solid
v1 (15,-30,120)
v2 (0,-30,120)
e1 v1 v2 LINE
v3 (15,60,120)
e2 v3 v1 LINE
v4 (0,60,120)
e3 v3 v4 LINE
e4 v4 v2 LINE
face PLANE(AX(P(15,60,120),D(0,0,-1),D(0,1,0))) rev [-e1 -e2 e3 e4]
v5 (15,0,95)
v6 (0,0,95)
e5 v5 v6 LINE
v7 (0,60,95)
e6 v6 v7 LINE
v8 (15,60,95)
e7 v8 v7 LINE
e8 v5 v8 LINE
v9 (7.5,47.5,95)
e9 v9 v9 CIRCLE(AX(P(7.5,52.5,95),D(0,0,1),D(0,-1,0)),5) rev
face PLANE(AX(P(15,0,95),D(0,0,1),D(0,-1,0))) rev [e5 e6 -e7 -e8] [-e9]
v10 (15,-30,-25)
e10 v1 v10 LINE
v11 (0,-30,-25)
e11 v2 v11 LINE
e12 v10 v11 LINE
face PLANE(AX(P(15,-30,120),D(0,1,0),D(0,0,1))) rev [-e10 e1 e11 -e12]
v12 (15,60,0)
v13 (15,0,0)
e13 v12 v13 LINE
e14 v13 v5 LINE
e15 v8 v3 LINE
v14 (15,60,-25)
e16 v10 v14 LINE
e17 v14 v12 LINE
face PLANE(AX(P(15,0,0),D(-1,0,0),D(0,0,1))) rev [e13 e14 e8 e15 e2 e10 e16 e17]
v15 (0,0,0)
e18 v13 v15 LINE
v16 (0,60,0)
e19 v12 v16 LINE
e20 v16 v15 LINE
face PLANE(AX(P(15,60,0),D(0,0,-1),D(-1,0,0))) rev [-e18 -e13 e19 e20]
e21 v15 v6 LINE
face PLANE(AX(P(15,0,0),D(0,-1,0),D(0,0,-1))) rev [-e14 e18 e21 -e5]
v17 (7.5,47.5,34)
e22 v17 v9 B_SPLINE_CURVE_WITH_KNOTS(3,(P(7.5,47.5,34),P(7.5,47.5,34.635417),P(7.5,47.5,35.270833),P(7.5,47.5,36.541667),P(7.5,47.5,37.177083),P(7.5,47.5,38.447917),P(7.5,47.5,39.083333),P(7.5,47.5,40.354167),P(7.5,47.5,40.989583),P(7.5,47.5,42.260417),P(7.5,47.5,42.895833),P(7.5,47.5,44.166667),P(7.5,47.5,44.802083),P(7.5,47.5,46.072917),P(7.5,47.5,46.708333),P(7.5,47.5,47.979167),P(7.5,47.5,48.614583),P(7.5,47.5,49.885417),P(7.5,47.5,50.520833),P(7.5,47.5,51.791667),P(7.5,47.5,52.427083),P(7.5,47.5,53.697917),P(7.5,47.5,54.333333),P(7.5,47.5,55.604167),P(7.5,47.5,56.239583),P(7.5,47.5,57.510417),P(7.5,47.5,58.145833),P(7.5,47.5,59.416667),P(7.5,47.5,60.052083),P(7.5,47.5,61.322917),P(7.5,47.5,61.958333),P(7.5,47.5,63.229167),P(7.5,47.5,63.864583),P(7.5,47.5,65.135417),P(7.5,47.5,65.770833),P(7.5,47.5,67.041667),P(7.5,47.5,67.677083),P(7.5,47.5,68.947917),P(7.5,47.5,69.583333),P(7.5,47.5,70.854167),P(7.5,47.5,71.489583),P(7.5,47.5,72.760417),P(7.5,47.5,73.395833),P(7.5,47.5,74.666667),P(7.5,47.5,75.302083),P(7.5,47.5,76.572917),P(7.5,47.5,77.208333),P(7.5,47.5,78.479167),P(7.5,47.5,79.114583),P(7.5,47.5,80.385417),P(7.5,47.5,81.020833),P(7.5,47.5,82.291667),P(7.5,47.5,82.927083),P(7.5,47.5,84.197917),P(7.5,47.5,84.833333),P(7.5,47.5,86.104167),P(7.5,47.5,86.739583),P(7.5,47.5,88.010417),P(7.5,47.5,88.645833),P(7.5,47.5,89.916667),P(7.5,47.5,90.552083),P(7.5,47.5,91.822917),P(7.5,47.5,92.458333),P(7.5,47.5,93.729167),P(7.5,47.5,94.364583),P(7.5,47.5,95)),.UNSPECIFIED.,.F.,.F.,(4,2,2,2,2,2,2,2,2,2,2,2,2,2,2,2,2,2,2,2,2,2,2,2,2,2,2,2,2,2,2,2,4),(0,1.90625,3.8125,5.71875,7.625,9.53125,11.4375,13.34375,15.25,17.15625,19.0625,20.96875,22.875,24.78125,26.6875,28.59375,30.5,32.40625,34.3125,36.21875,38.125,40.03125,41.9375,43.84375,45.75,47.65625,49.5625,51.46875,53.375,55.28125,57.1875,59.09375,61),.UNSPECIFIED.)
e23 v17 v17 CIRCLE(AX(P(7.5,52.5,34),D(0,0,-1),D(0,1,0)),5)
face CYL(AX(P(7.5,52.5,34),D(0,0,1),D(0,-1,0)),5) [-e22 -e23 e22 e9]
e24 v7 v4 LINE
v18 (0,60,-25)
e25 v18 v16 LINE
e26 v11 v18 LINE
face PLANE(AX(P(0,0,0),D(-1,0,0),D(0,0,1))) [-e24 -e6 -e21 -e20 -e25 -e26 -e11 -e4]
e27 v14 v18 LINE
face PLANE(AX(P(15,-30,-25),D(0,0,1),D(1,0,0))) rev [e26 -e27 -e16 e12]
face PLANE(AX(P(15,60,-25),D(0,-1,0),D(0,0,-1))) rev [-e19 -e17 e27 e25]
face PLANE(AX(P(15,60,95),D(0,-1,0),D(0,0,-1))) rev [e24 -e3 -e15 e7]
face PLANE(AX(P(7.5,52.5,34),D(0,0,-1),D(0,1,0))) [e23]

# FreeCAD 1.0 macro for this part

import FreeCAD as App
import Part
import Sketcher

doc = App.newDocument("Part")
body = doc.addObject("PartDesign::Body", "Body")

sketch1 = doc.addObject("Sketcher::SketchObject", "Sketch")
body.addObject(sketch1)
sketch1.AttachmentSupport = (doc.YZ_Plane, [""])
sketch1.MapMode = "FlatFace"
sketch1.addGeometry(Part.LineSegment(App.Vector(0, 0, 0), App.Vector(0, 95, 0)), False)
sketch1.addGeometry(Part.LineSegment(App.Vector(0, 95, 0), App.Vector(60, 95, 0)), False)
sketch1.addGeometry(Part.LineSegment(App.Vector(60, 95, 0), App.Vector(60, 120, 0)), False)
sketch1.addGeometry(Part.LineSegment(App.Vector(60, 120, 0), App.Vector(-30, 120, 0)), False)
sketch1.addGeometry(Part.LineSegment(App.Vector(-30, 120, 0), App.Vector(-30, -25, 0)), False)
sketch1.addGeometry(Part.LineSegment(App.Vector(-30, -25, 0), App.Vector(60, -25, 0)), False)
sketch1.addGeometry(Part.LineSegment(App.Vector(60, -25, 0), App.Vector(60, 0, 0)), False)
sketch1.addGeometry(Part.LineSegment(App.Vector(60, 0, 0), App.Vector(0, 0, 0)), False)
sketch1.addConstraint(Sketcher.Constraint("Coincident", 0, 2, 1, 1))
sketch1.addConstraint(Sketcher.Constraint("Coincident", 1, 2, 2, 1))
sketch1.addConstraint(Sketcher.Constraint("Coincident", 2, 2, 3, 1))
sketch1.addConstraint(Sketcher.Constraint("Coincident", 3, 2, 4, 1))
sketch1.addConstraint(Sketcher.Constraint("Coincident", 4, 2, 5, 1))
sketch1.addConstraint(Sketcher.Constraint("Coincident", 5, 2, 6, 1))
sketch1.addConstraint(Sketcher.Constraint("Coincident", 6, 2, 7, 1))
sketch1.addConstraint(Sketcher.Constraint("Coincident", 7, 2, 0, 1))
sketch1.addConstraint(Sketcher.Constraint("Vertical", 0))
sketch1.addConstraint(Sketcher.Constraint("Horizontal", 1))
sketch1.addConstraint(Sketcher.Constraint("Vertical", 2))
sketch1.addConstraint(Sketcher.Constraint("Horizontal", 3))
sketch1.addConstraint(Sketcher.Constraint("Vertical", 4))
sketch1.addConstraint(Sketcher.Constraint("Horizontal", 5))
sketch1.addConstraint(Sketcher.Constraint("Vertical", 6))
sketch1.addConstraint(Sketcher.Constraint("Horizontal", 7))
sketch1.addConstraint(Sketcher.Constraint("Coincident", 7, 2, -1, 1))
sketch1.addConstraint(Sketcher.Constraint("Vertical", 2, 2, 5, 2))
sketch1.addConstraint(Sketcher.Constraint("Equal", 2, 6))
sketch1.addConstraint(Sketcher.Constraint("DistanceX", 1, 1, 1, 2, 60.0))
sketch1.addConstraint(Sketcher.Constraint("DistanceX", 3, 2, 3, 1, 90.0))
sketch1.addConstraint(Sketcher.Constraint("DistanceY", 0, 1, 0, 2, 95.0))
sketch1.addConstraint(Sketcher.Constraint("DistanceY", 2, 1, 2, 2, 25.0))
pad1 = doc.addObject("PartDesign::Pad", "Pad")
body.addObject(pad1)
pad1.Profile = sketch1
pad1.Length = 15

sketch2 = doc.addObject("Sketcher::SketchObject", "Sketch001")
body.addObject(sketch2)
sketch2.AttachmentSupport = (doc.XY_Plane, [""])
sketch2.MapMode = "FlatFace"
sketch2.AttachmentOffset = App.Placement(App.Vector(0, 0, 95), App.Rotation())
sketch2.addGeometry(Part.Circle(App.Vector(8, 52, 0), App.Vector(0, 0, 1), 5), False)
sketch2.addConstraint(Sketcher.Constraint("Diameter", 0, 10.0))
sketch2.addConstraint(Sketcher.Constraint("DistanceX", -1, 1, 0, 3, 7.5))
sketch2.addConstraint(Sketcher.Constraint("DistanceY", -1, 1, 0, 3, 52.5))
pad2 = doc.addObject("PartDesign::Pad", "Pad001")
body.addObject(pad2)
pad2.Profile = sketch2
pad2.Length = 61
pad2.Reversed = True

doc.recompute()
